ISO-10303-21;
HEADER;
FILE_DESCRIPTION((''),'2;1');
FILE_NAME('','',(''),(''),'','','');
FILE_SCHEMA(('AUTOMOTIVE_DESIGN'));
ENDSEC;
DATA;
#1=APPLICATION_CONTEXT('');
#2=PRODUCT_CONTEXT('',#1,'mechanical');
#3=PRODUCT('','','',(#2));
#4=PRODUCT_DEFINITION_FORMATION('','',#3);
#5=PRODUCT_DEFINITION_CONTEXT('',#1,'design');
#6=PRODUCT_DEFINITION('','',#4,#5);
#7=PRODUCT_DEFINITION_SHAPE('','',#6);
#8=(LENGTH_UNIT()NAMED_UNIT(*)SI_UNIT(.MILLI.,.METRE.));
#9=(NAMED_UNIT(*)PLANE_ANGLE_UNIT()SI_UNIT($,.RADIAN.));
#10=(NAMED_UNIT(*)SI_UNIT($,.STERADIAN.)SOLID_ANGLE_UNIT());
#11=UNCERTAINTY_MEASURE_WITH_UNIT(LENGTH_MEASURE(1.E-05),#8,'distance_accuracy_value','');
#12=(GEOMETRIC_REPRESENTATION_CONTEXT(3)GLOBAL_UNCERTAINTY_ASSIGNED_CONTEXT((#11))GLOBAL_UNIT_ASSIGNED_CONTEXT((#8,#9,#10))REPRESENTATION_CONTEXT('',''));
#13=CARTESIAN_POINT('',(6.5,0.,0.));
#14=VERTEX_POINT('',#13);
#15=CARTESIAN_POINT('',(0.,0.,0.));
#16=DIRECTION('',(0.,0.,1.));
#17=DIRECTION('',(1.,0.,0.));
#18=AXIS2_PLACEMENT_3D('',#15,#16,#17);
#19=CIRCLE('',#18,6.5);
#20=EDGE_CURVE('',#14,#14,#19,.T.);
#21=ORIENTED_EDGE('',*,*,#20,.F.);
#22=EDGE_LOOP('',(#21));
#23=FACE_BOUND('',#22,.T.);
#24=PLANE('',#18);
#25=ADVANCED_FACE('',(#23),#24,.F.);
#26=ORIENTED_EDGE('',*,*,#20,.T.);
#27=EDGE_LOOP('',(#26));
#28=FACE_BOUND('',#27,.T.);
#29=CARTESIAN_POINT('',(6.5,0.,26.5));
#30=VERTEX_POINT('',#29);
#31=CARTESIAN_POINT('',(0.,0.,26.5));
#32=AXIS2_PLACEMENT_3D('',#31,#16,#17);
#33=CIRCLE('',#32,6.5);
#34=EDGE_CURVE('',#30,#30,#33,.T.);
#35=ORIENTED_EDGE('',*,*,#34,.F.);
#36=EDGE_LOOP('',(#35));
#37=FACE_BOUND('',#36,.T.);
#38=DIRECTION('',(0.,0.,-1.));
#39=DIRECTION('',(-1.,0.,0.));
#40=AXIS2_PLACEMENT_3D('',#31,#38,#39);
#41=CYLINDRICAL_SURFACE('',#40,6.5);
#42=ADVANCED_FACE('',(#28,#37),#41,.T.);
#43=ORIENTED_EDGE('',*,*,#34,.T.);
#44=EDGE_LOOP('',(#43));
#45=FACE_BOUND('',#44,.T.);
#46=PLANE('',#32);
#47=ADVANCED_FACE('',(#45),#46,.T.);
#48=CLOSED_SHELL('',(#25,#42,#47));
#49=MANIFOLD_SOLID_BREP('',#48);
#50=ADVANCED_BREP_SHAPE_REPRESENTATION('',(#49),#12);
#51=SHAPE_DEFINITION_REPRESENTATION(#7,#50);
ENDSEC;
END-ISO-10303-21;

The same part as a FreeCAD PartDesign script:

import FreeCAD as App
import Part
import Sketcher
Q = App.Units.Quantity

doc = App.newDocument("Part")
body = doc.addObject("PartDesign::Body", "Body")

sketch1 = body.newObject("Sketcher::SketchObject", "Sketch")
sketch1.AttachmentSupport = (doc.getObject("XY_Plane"), [""])
sketch1.MapMode = "FlatFace"
sketch1.addGeometry(Part.Circle(App.Vector(0, 0, 0), App.Vector(0, 0, 1), 6.5), False)
sketch1.addConstraint([
    Sketcher.Constraint("Coincident", 0, 3, -1, 1),
    Sketcher.Constraint("Diameter", 0, Q("13 mm")),
])
pad1 = body.newObject("PartDesign::Pad", "Pad")
pad1.Profile = sketch1
pad1.Length = 26.5

doc.recompute()
